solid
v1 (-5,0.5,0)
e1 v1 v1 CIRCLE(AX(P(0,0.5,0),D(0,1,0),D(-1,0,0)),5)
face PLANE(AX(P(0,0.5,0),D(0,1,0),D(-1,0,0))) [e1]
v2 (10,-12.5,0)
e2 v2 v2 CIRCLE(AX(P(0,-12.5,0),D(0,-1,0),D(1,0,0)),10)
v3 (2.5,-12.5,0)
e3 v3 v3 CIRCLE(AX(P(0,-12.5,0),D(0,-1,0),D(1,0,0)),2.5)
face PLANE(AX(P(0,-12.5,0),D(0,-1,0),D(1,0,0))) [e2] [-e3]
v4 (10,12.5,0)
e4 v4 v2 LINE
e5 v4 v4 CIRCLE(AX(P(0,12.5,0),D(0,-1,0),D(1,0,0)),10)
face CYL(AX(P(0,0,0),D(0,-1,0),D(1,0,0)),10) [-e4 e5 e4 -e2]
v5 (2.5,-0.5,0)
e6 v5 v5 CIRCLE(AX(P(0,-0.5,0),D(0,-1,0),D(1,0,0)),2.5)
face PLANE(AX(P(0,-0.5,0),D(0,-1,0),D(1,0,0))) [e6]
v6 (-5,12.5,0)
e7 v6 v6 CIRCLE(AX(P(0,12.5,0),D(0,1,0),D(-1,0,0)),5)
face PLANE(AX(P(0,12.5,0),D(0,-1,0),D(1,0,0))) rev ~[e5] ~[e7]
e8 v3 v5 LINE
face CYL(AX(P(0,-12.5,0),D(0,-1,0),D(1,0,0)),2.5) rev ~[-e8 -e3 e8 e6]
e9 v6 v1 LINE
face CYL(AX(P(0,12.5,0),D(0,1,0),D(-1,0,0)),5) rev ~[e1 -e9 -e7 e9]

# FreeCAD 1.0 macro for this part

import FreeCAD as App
import Part
import Sketcher
Q = App.Units.Quantity

doc = App.newDocument("Part")
params = doc.addObject("Spreadsheet::Sheet", "Params")
for row, (alias, value) in enumerate([
    ("sketch1_diameter", "20 mm"),
    ("pad1_length", "25 mm"),
    ("sketch2_diameter", "5 mm"),
    ("pocket1_length", "12 mm"),
    ("sketch3_diameter", "10 mm"),
    ("pocket2_length", "12 mm"),
], start=1):
    params.set(f"A{row}", alias)
    params.set(f"B{row}", "=" + value)
    params.setAlias(f"B{row}", alias)

body = doc.addObject("PartDesign::Body", "Body")

# Sketch on XZ plane
sketch1 = body.newObject("Sketcher::SketchObject", "Sketch")
sketch1.AttachmentSupport = (doc.getObject("XZ_Plane"), [""])
sketch1.MapMode = "FlatFace"
sketch1.addGeometry(Part.Circle(App.Vector(0, 0, 0), App.Vector(0, 0, 1), 10), False)
sketch1.addConstraint([
    Sketcher.Constraint("Coincident", 0, 3, -1, 1),
    Sketcher.Constraint("Diameter", 0, Q("20 mm")),
])
sketch1.setExpression("Constraints[1]", "Params.sketch1_diameter")
pad1 = body.newObject("PartDesign::Pad", "Pad")
pad1.Profile = sketch1
pad1.setExpression("Length", "Params.pad1_length")
pad1.Midplane = True

# Sketch on XZ plane
sketch2 = body.newObject("Sketcher::SketchObject", "Sketch001")
sketch2.AttachmentSupport = (doc.getObject("XZ_Plane"), [""])
sketch2.MapMode = "FlatFace"
sketch2.AttachmentOffset = App.Placement(App.Vector(0, 0, 12.5), App.Rotation())
sketch2.addGeometry(Part.Circle(App.Vector(0, 0, 0), App.Vector(0, 0, 1), 2.5), False)
sketch2.addConstraint([
    Sketcher.Constraint("Coincident", 0, 3, -1, 1),
    Sketcher.Constraint("Diameter", 0, Q("5 mm")),
])
sketch2.setExpression("Constraints[1]", "Params.sketch2_diameter")
pocket1 = body.newObject("PartDesign::Pocket", "Pocket")
pocket1.Profile = sketch2
pocket1.setExpression("Length", "Params.pocket1_length")

# Sketch on XZ plane
sketch3 = body.newObject("Sketcher::SketchObject", "Sketch002")
sketch3.AttachmentSupport = (doc.getObject("XZ_Plane"), [""])
sketch3.MapMode = "FlatFace"
sketch3.AttachmentOffset = App.Placement(App.Vector(0, 0, -12.5), App.Rotation())
sketch3.addGeometry(Part.Circle(App.Vector(0, 0, 0), App.Vector(0, 0, 1), 5), False)
sketch3.addConstraint([
    Sketcher.Constraint("Coincident", 0, 3, -1, 1),
    Sketcher.Constraint("Diameter", 0, Q("10 mm")),
])
sketch3.setExpression("Constraints[1]", "Params.sketch3_diameter")
pocket2 = body.newObject("PartDesign::Pocket", "Pocket001")
pocket2.Profile = sketch3
pocket2.setExpression("Length", "Params.pocket2_length")
pocket2.Reversed = True

doc.recompute()
